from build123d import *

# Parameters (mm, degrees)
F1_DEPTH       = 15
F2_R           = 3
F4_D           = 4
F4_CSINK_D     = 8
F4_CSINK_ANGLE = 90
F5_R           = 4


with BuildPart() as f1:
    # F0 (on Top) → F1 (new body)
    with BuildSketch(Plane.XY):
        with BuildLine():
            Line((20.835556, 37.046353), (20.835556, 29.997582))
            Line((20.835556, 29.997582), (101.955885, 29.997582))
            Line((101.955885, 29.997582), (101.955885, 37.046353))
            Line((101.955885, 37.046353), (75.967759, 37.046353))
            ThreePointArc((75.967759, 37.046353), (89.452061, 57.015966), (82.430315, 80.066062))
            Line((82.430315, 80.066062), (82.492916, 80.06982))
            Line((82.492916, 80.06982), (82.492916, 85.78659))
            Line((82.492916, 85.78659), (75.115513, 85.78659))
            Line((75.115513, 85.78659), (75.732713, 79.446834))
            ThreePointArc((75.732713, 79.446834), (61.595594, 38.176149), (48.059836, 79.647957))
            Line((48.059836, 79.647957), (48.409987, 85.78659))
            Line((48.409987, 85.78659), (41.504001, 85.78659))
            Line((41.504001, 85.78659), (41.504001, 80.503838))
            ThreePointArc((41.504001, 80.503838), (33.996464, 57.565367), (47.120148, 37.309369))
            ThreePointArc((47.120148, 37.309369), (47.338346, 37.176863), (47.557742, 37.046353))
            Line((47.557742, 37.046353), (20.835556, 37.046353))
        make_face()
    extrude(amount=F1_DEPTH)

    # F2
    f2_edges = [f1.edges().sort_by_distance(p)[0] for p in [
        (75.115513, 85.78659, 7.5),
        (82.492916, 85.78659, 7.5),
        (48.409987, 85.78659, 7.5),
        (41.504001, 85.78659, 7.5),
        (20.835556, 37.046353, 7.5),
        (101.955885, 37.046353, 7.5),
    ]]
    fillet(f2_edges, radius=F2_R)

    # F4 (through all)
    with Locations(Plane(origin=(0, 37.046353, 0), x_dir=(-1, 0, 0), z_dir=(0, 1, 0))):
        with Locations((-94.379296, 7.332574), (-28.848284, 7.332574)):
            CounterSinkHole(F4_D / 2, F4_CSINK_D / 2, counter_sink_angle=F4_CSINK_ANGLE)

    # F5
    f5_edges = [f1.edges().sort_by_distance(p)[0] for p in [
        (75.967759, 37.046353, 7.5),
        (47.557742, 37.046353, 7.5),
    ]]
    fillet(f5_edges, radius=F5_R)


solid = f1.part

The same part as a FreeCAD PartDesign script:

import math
import FreeCAD as App
import Part
import Sketcher

V = App.Vector
Q = App.Units.Quantity


def edges_at(feature, points):
    """Names of the edges that pass closest to the given points."""
    edges = feature.Shape.Edges
    near = lambda p: min(range(len(edges)), key=lambda i: edges[i].distToShape(Part.Vertex(*p))[0])
    return sorted({f"Edge{near(p) + 1}" for p in points})

doc = App.newDocument("Part")
params = doc.addObject("Spreadsheet::Sheet", "Params")
for row, (alias, value) in enumerate([
    ("sketch1_radius", "28 mm"),
    ("sketch1_radius2", "23 mm"),
    ("sketch1_radius3", "27.999999 mm"),
    ("pad1_length", "15 mm"),
    ("fillet_radius", "3 mm"),
    ("sketch2_diameter", "4 mm"),
    ("hole_diameter", "4 mm"),
    ("hole_csink_diameter", "8 mm"),
    ("fillet2_radius", "4 mm"),
], start=1):
    params.set(f"A{row}", alias)
    params.set(f"B{row}", "=" + value)
    params.setAlias(f"B{row}", alias)

body = doc.addObject("PartDesign::Body", "Body")

sketch1 = body.newObject("Sketcher::SketchObject", "Sketch")
sketch1.AttachmentSupport = (doc.getObject("XY_Plane"), [""])
sketch1.MapMode = "FlatFace"
sketch1.addGeometry(Part.LineSegment(V(20.835556, 37.046353, 0), V(20.835556, 29.997582, 0)), False)
sketch1.addGeometry(Part.LineSegment(V(20.835556, 29.997582, 0), V(101.955885, 29.997582, 0)), False)
sketch1.addGeometry(Part.LineSegment(V(101.955885, 29.997582, 0), V(101.955885, 37.046353, 0)), False)
sketch1.addGeometry(Part.LineSegment(V(101.955885, 37.046353, 0), V(75.967759, 37.046353, 0)), False)
sketch1.addGeometry(Part.ArcOfCircle(Part.Circle(V(61.76275, 61.175541, 0), V(0, 0, 1), 28), math.radians(-59.514403), math.radians(42.427865)), False)
sketch1.addGeometry(Part.LineSegment(V(82.430315, 80.066062, 0), V(82.492916, 80.06982, 0)), False)
sketch1.addGeometry(Part.LineSegment(V(82.492916, 80.06982, 0), V(82.492916, 85.78659, 0)), False)
sketch1.addGeometry(Part.LineSegment(V(82.492916, 85.78659, 0), V(75.115513, 85.78659, 0)), False)
sketch1.addGeometry(Part.LineSegment(V(75.115513, 85.78659, 0), V(75.732713, 79.446834, 0)), False)
sketch1.addGeometry(Part.ArcOfCircle(Part.Circle(V(61.76275, 61.175541, 0), V(0, 0, 1), 23), math.radians(126.568177), math.radians(412.599001)), False)
sketch1.addGeometry(Part.LineSegment(V(48.059836, 79.647957, 0), V(48.409987, 85.78659, 0)), False)
sketch1.addGeometry(Part.LineSegment(V(48.409987, 85.78659, 0), V(41.504001, 85.78659, 0)), False)
sketch1.addGeometry(Part.LineSegment(V(41.504001, 85.78659, 0), V(41.504001, 80.503838, 0)), False)
sketch1.addGeometry(Part.ArcOfCircle(Part.Circle(V(61.762749, 61.175541, 0), V(0, 0, 1), 27.999999), math.radians(136.346427), math.radians(238.469656)), False)
sketch1.addGeometry(Part.ArcOfCircle(Part.Circle(V(61.759666, 61.170397, 0), V(0, 0, 1), 27.994002), math.radians(-121.530471), math.radians(-120.485497)), False)
sketch1.addGeometry(Part.LineSegment(V(47.557742, 37.046353, 0), V(20.835556, 37.046353, 0)), False)
sketch1.addConstraint(Sketcher.Constraint("Coincident", 0, 2, 1, 1))
sketch1.addConstraint(Sketcher.Constraint("Coincident", 1, 2, 2, 1))
sketch1.addConstraint(Sketcher.Constraint("Coincident", 2, 2, 3, 1))
sketch1.addConstraint(Sketcher.Constraint("Coincident", 3, 2, 4, 1))
sketch1.addConstraint(Sketcher.Constraint("Coincident", 4, 2, 5, 1))
sketch1.addConstraint(Sketcher.Constraint("Coincident", 5, 2, 6, 1))
sketch1.addConstraint(Sketcher.Constraint("Coincident", 6, 2, 7, 1))
sketch1.addConstraint(Sketcher.Constraint("Coincident", 7, 2, 8, 1))
sketch1.addConstraint(Sketcher.Constraint("Coincident", 8, 2, 9, 2))
sketch1.addConstraint(Sketcher.Constraint("Coincident", 9, 1, 10, 1))
sketch1.addConstraint(Sketcher.Constraint("Coincident", 10, 2, 11, 1))
sketch1.addConstraint(Sketcher.Constraint("Coincident", 11, 2, 12, 1))
sketch1.addConstraint(Sketcher.Constraint("Coincident", 12, 2, 13, 1))
sketch1.addConstraint(Sketcher.Constraint("Coincident", 13, 2, 14, 1))
sketch1.addConstraint(Sketcher.Constraint("Coincident", 14, 2, 15, 1))
sketch1.addConstraint(Sketcher.Constraint("Coincident", 15, 2, 0, 1))
sketch1.addConstraint(Sketcher.Constraint("Vertical", 0))
sketch1.addConstraint(Sketcher.Constraint("Horizontal", 1))
sketch1.addConstraint(Sketcher.Constraint("Vertical", 2))
sketch1.addConstraint(Sketcher.Constraint("Horizontal", 3))
sketch1.addConstraint(Sketcher.Constraint("Vertical", 6))
sketch1.addConstraint(Sketcher.Constraint("Horizontal", 7))
sketch1.addConstraint(Sketcher.Constraint("Horizontal", 11))
sketch1.addConstraint(Sketcher.Constraint("Vertical", 12))
sketch1.addConstraint(Sketcher.Constraint("Horizontal", 15))
sketch1.addConstraint(Sketcher.Constraint("Coincident", 9, 3, 4, 3))
sketch1.addConstraint(Sketcher.Constraint("Coincident", 13, 3, 4, 3))
sketch1.addConstraint(Sketcher.Constraint("Radius", 4, Q("28 mm")))
sketch1.addConstraint(Sketcher.Constraint("Radius", 9, Q("23 mm")))
sketch1.addConstraint(Sketcher.Constraint("Radius", 13, Q("27.999999 mm")))
sketch1.addConstraint(Sketcher.Constraint("DistanceX", -1, 1, 11, 2, Q("41.504001 mm")))
sketch1.addConstraint(Sketcher.Constraint("Radius", 14, Q("27.994002 mm")))
sketch1.addConstraint(Sketcher.Constraint("DistanceX", 1, 1, 1, 2, Q("81.120329 mm")))
sketch1.addConstraint(Sketcher.Constraint("DistanceY", 0, 2, 0, 1, Q("7.048771 mm")))
sketch1.addConstraint(Sketcher.Constraint("DistanceY", 2, 1, 2, 2, Q("7.048771 mm")))
sketch1.addConstraint(Sketcher.Constraint("DistanceY", 6, 1, 6, 2, Q("5.71677 mm")))
sketch1.addConstraint(Sketcher.Constraint("DistanceX", 4, 2, 5, 2, Q("0.062601 mm")))
sketch1.addConstraint(Sketcher.Constraint("DistanceX", 7, 2, 4, 2, Q("7.314802 mm")))
sketch1.addConstraint(Sketcher.Constraint("DistanceX", 7, 2, 8, 2, Q("0.6172 mm")))
sketch1.addConstraint(Sketcher.Constraint("DistanceX", 13, 2, 13, 3, Q("14.642601 mm")))
sketch1.addConstraint(Sketcher.Constraint("Distance", 8, Q("6.369729 mm")))
sketch1.addConstraint(Sketcher.Constraint("Distance", 10, Q("6.148611 mm")))
sketch1.addConstraint(Sketcher.Constraint("DistanceX", 3, 2, 3, 1, Q("25.988126 mm")))
sketch1.addConstraint(Sketcher.Constraint("DistanceX", 11, 2, 11, 1, Q("6.905986 mm")))
sketch1.addConstraint(Sketcher.Constraint("DistanceX", 15, 2, 15, 1, Q("26.722186 mm")))
sketch1.addConstraint(Sketcher.Constraint("DistanceY", 12, 2, 12, 1, Q("5.282752 mm")))
sketch1.addConstraint(Sketcher.Constraint("DistanceX", -1, 1, 4, 3, Q("61.76275 mm")))
sketch1.addConstraint(Sketcher.Constraint("DistanceY", -1, 1, 4, 3, Q("61.175541 mm")))
sketch1.addConstraint(Sketcher.Constraint("DistanceX", -1, 1, 3, 2, Q("75.967759 mm")))
sketch1.addConstraint(Sketcher.Constraint("DistanceY", -1, 1, 4, 2, Q("80.066062 mm")))
sketch1.setExpression("Constraints[27]", "Params.sketch1_radius")
sketch1.setExpression("Constraints[28]", "Params.sketch1_radius2")
sketch1.setExpression("Constraints[29]", "Params.sketch1_radius3")
pad1 = body.newObject("PartDesign::Pad", "Pad")
pad1.Profile = sketch1
pad1.setExpression("Length", "Params.pad1_length")
doc.recompute()

fillet = body.newObject("PartDesign::Fillet", "Fillet")
fillet.Base = (pad1, edges_at(pad1, [
    (75.116, 85.787, 7.5),
    (82.493, 85.787, 7.5),
    (48.41, 85.787, 7.5),
    (41.504, 85.787, 7.5),
    (20.836, 37.046, 7.5),
    (101.956, 37.046, 7.5),
]))
fillet.setExpression("Radius", "Params.fillet_radius")

sketch2 = body.newObject("Sketcher::SketchObject", "Sketch001")
sketch2.AttachmentSupport = (doc.getObject("XZ_Plane"), [""])
sketch2.MapMode = "FlatFace"
sketch2.AttachmentOffset = App.Placement(V(0, 0, -37.046353), App.Rotation())
sketch2.addGeometry(Part.Circle(V(94.4, 7.3, 0), V(0, 0, 1), 2), False)
sketch2.addGeometry(Part.Circle(V(28.8, 7.3, 0), V(0, 0, 1), 2), False)
sketch2.addConstraint(Sketcher.Constraint("Equal", 0, 1))
sketch2.addConstraint(Sketcher.Constraint("Horizontal", 0, 3, 1, 3))
sketch2.addConstraint(Sketcher.Constraint("Diameter", 0, Q("4 mm")))
sketch2.addConstraint(Sketcher.Constraint("DistanceX", -1, 1, 0, 3, Q("94.379296 mm")))
sketch2.addConstraint(Sketcher.Constraint("DistanceY", -1, 1, 0, 3, Q("7.332574 mm")))
sketch2.addConstraint(Sketcher.Constraint("DistanceX", -1, 1, 1, 3, Q("28.848284 mm")))
sketch2.setExpression("Constraints[2]", "Params.sketch2_diameter")
doc.recompute()
hole = body.newObject("PartDesign::Hole", "Hole")
hole.Profile = sketch2
hole.ThreadType = "None"
hole.setExpression("Diameter", "Params.hole_diameter")
hole.DepthType = "ThroughAll"
hole.HoleCutType = "Countersink"
hole.setExpression("HoleCutDiameter", "Params.hole_csink_diameter")
hole.HoleCutCountersinkAngle = 90
hole.Reversed = True
doc.recompute()

fillet2 = body.newObject("PartDesign::Fillet", "Fillet001")
fillet2.Base = (hole, edges_at(hole, [(75.968, 37.046, 7.5), (47.558, 37.046, 7.5)]))
fillet2.setExpression("Radius", "Params.fillet2_radius")

doc.recompute()
